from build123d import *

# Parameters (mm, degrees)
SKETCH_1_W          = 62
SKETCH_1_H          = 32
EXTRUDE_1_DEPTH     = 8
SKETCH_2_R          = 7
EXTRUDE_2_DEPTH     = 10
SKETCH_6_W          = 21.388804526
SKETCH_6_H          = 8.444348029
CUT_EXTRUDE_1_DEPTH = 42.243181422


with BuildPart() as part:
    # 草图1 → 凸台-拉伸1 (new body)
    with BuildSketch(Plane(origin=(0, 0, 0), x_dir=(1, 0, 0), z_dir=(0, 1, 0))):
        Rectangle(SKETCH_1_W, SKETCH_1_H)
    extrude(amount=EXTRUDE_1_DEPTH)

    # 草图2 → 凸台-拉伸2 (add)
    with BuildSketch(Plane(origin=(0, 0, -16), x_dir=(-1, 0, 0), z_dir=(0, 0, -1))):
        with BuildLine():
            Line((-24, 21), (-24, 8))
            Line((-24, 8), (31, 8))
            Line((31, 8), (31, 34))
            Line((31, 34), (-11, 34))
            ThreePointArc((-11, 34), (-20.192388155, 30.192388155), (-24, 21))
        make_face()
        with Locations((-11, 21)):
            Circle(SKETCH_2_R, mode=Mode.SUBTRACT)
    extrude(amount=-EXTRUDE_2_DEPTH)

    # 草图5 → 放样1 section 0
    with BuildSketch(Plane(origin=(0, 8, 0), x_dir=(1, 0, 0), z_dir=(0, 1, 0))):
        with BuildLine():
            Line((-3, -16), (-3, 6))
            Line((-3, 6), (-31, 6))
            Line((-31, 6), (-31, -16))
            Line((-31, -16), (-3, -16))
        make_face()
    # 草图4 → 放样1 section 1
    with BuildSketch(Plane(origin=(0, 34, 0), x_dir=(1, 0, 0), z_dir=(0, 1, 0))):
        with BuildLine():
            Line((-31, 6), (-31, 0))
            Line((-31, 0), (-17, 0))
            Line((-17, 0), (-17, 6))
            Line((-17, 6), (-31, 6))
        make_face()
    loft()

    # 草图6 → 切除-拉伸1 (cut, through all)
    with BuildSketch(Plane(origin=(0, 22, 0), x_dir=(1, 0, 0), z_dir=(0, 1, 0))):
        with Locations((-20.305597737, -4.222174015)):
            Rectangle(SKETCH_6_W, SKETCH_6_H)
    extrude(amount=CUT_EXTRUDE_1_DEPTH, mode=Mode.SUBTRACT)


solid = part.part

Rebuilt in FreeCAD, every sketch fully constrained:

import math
import FreeCAD as App
import Part
import Sketcher

V = App.Vector


def add_polygon(sketch, points):
    """Adds a closed chain of lines whose ends are joined by coincident constraints."""
    first, n = sketch.GeometryCount, len(points)
    for a, b in zip(points, points[1:] + points[:1]):
        sketch.addGeometry(Part.LineSegment(App.Vector(*a, 0), App.Vector(*b, 0)), False)
    for i in range(n):
        sketch.addConstraint(Sketcher.Constraint("Coincident", first + i, 2, first + (i + 1) % n, 1))

doc = App.newDocument("Part")
body = doc.addObject("PartDesign::Body", "Body")

sketch1 = body.newObject("Sketcher::SketchObject", "Sketch")
sketch1.AttachmentSupport = (doc.getObject("XZ_Plane"), [""])
sketch1.MapMode = "FlatFace"
add_polygon(sketch1, [(-31, -16), (-31, 16), (31, 16), (31, -16)])
sketch1.addConstraint(Sketcher.Constraint("Vertical", 0))
sketch1.addConstraint(Sketcher.Constraint("Horizontal", 1))
sketch1.addConstraint(Sketcher.Constraint("Vertical", 2))
sketch1.addConstraint(Sketcher.Constraint("Horizontal", 3))
sketch1.addConstraint(Sketcher.Constraint("Symmetric", 0, 2, 2, 2, -1, 1))
sketch1.addConstraint(Sketcher.Constraint("DistanceX", 1, 1, 1, 2, 62.0))
sketch1.addConstraint(Sketcher.Constraint("DistanceY", 0, 1, 0, 2, 32.0))
pad1 = body.newObject("PartDesign::Pad", "Pad")
pad1.Profile = sketch1
pad1.Length = 8
pad1.Reversed = True

sketch2 = body.newObject("Sketcher::SketchObject", "Sketch001")
sketch2.AttachmentSupport = (doc.getObject("XY_Plane"), [""])
sketch2.MapMode = "FlatFace"
sketch2.AttachmentOffset = App.Placement(V(0, 0, -16), App.Rotation())
sketch2.addGeometry(Part.LineSegment(V(24, 21, 0), V(24, 8, 0)), False)
sketch2.addGeometry(Part.LineSegment(V(24, 8, 0), V(-31, 8, 0)), False)
sketch2.addGeometry(Part.LineSegment(V(-31, 8, 0), V(-31, 34, 0)), False)
sketch2.addGeometry(Part.LineSegment(V(-31, 34, 0), V(11, 34, 0)), False)
sketch2.addGeometry(Part.ArcOfCircle(Part.Circle(V(11, 21, 0), V(0, 0, 1), 13), math.radians(0), math.radians(90)), False)
sketch2.addGeometry(Part.Circle(V(11, 21, 0), V(0, 0, 1), 7), False)
sketch2.addConstraint(Sketcher.Constraint("Coincident", 0, 2, 1, 1))
sketch2.addConstraint(Sketcher.Constraint("Coincident", 1, 2, 2, 1))
sketch2.addConstraint(Sketcher.Constraint("Coincident", 2, 2, 3, 1))
sketch2.addConstraint(Sketcher.Constraint("Tangent", 3, 2, 4, 2))
sketch2.addConstraint(Sketcher.Constraint("Tangent", 4, 1, 0, 1))
sketch2.addConstraint(Sketcher.Constraint("Vertical", 0))
sketch2.addConstraint(Sketcher.Constraint("Horizontal", 1))
sketch2.addConstraint(Sketcher.Constraint("Vertical", 2))
sketch2.addConstraint(Sketcher.Constraint("Horizontal", 3))
sketch2.addConstraint(Sketcher.Constraint("Coincident", 5, 3, 4, 3))
sketch2.addConstraint(Sketcher.Constraint("Diameter", 5, 14.0))
sketch2.addConstraint(Sketcher.Constraint("Radius", 4, 13.0))
sketch2.addConstraint(Sketcher.Constraint("DistanceX", 1, 2, 1, 1, 55.0))
sketch2.addConstraint(Sketcher.Constraint("DistanceY", 0, 2, 0, 1, 13.0))
sketch2.addConstraint(Sketcher.Constraint("DistanceX", -1, 1, 4, 3, 11.0))
sketch2.addConstraint(Sketcher.Constraint("DistanceY", -1, 1, 4, 3, 21.0))
pad2 = body.newObject("PartDesign::Pad", "Pad001")
pad2.Profile = sketch2
pad2.Length = 10

sketch3 = body.newObject("Sketcher::SketchObject", "Sketch002")
sketch3.AttachmentSupport = (doc.getObject("XZ_Plane"), [""])
sketch3.MapMode = "FlatFace"
sketch3.AttachmentOffset = App.Placement(V(0, 0, -8), App.Rotation())
add_polygon(sketch3, [(-3, 16), (-3, -6), (-31, -6), (-31, 16)])
sketch3.addConstraint(Sketcher.Constraint("Vertical", 0))
sketch3.addConstraint(Sketcher.Constraint("Horizontal", 1))
sketch3.addConstraint(Sketcher.Constraint("Vertical", 2))
sketch3.addConstraint(Sketcher.Constraint("Horizontal", 3))
sketch3.addConstraint(Sketcher.Constraint("DistanceX", 1, 2, 1, 1, 28.0))
sketch3.addConstraint(Sketcher.Constraint("DistanceY", 0, 2, 0, 1, 22.0))
sketch3.addConstraint(Sketcher.Constraint("DistanceX", 0, 2, -1, 1, 3.0))
sketch3.addConstraint(Sketcher.Constraint("DistanceY", 0, 2, -1, 1, 6.0))

sketch4 = body.newObject("Sketcher::SketchObject", "Sketch003")
sketch4.AttachmentSupport = (doc.getObject("XZ_Plane"), [""])
sketch4.MapMode = "FlatFace"
sketch4.AttachmentOffset = App.Placement(V(0, 0, -34), App.Rotation())
add_polygon(sketch4, [(-31, -6), (-31, 0), (-17, 0), (-17, -6)])
sketch4.addConstraint(Sketcher.Constraint("Vertical", 0))
sketch4.addConstraint(Sketcher.Constraint("Horizontal", 1))
sketch4.addConstraint(Sketcher.Constraint("Vertical", 2))
sketch4.addConstraint(Sketcher.Constraint("Horizontal", 3))
sketch4.addConstraint(Sketcher.Constraint("PointOnObject", 0, 2, -1))
sketch4.addConstraint(Sketcher.Constraint("DistanceX", 1, 1, 1, 2, 14.0))
sketch4.addConstraint(Sketcher.Constraint("DistanceY", 0, 1, 0, 2, 6.0))
sketch4.addConstraint(Sketcher.Constraint("DistanceX", 0, 2, -1, 1, 31.0))

additiveloft = body.newObject("PartDesign::AdditiveLoft", "AdditiveLoft")
additiveloft.Profile = sketch3
additiveloft.Sections = [sketch4]

sketch5 = body.newObject("Sketcher::SketchObject", "Sketch004")
sketch5.AttachmentSupport = (doc.getObject("XZ_Plane"), [""])
sketch5.MapMode = "FlatFace"
sketch5.AttachmentOffset = App.Placement(V(0, 0, -22), App.Rotation())
add_polygon(sketch5, [(-31, 0), (-31, 8), (-10, 8), (-10, 0)])
sketch5.addConstraint(Sketcher.Constraint("Vertical", 0))
sketch5.addConstraint(Sketcher.Constraint("Horizontal", 1))
sketch5.addConstraint(Sketcher.Constraint("Vertical", 2))
sketch5.addConstraint(Sketcher.Constraint("Horizontal", 3))
sketch5.addConstraint(Sketcher.Constraint("PointOnObject", 2, 2, -1))
sketch5.addConstraint(Sketcher.Constraint("DistanceX", 0, 2, -1, 1, 31.0))
sketch5.addConstraint(Sketcher.Constraint("DistanceY", 0, 1, 0, 2, 8.444348))
sketch5.addConstraint(Sketcher.Constraint("DistanceX", 1, 1, 1, 2, 21.388805))
pocket1 = body.newObject("PartDesign::Pocket", "Pocket")
pocket1.Profile = sketch5
pocket1.Type = "ThroughAll"

doc.recompute()
